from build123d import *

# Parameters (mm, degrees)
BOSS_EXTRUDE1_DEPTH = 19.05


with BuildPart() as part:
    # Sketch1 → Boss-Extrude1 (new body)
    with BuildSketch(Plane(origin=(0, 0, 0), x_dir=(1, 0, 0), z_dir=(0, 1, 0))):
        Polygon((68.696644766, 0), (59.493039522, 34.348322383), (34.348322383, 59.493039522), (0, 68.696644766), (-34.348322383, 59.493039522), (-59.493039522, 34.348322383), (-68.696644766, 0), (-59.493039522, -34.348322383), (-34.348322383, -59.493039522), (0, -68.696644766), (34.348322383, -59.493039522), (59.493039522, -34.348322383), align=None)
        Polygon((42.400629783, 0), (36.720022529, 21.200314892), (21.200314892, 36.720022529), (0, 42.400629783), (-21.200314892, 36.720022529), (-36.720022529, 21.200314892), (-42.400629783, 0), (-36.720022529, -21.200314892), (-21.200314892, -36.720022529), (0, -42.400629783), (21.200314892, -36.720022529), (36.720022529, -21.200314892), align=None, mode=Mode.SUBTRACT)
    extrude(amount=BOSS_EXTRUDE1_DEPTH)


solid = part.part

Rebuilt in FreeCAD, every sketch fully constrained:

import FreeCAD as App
import Part
import Sketcher
from FreeCAD import Vector
Q = App.Units.Quantity


def add_polygon(sketch, points):
    """Adds a closed chain of lines whose ends are joined by coincident constraints."""
    first, n = sketch.GeometryCount, len(points)
    for a, b in zip(points, points[1:] + points[:1]):
        sketch.addGeometry(Part.LineSegment(App.Vector(*a, 0), App.Vector(*b, 0)), False)
    for i in range(n):
        sketch.addConstraint(Sketcher.Constraint("Coincident", first + i, 2, first + (i + 1) % n, 1))

doc = App.newDocument("Part")
body = doc.addObject("PartDesign::Body", "Body")

# Sketch on XZ plane
sketch1 = doc.addObject("Sketcher::SketchObject", "Sketch")
body.addObject(sketch1)
sketch1.AttachmentSupport = (doc.XZ_Plane, [""])
sketch1.MapMode = "FlatFace"
add_polygon(sketch1, [(69, 0), (59, -34), (34, -59), (0, -69), (-34, -59), (-59, -34), (-69, 0), (-59, 34), (-34, 59), (0, 69), (34, 59), (59, 34)])  # lines 0-11
add_polygon(sketch1, [(37, -21), (42, 0), (37, 21), (21, 37), (0, 42), (-21, 37), (-37, 21), (-42, 0), (-37, -21), (-21, -37), (0, -42), (21, -37)])  # lines 12-23
sketch1.addConstraint([
    Sketcher.Constraint("Symmetric", 0, 2, 6, 2, -1, 1),
    Sketcher.Constraint("Symmetric", 1, 2, 7, 2, -1, 1),
    Sketcher.Constraint("Symmetric", 2, 2, 8, 2, -1, 1),
    Sketcher.Constraint("Symmetric", 3, 2, 9, 2, -1, 1),
    Sketcher.Constraint("Symmetric", 4, 2, 10, 2, -1, 1),
    Sketcher.Constraint("Symmetric", 5, 2, 11, 2, -1, 1),
    Sketcher.Constraint("Symmetric", 12, 2, 18, 2, -1, 1),
    Sketcher.Constraint("Symmetric", 13, 2, 19, 2, -1, 1),
    Sketcher.Constraint("Symmetric", 14, 2, 20, 2, -1, 1),
    Sketcher.Constraint("Symmetric", 15, 2, 21, 2, -1, 1),
    Sketcher.Constraint("Symmetric", 16, 2, 22, 2, -1, 1),
    Sketcher.Constraint("Symmetric", 17, 2, 23, 2, -1, 1),
    Sketcher.Constraint("Symmetric", 1, 2, 3, 2, -2),
    Sketcher.Constraint("Symmetric", 0, 2, 4, 2, -2),
    Sketcher.Constraint("Symmetric", 14, 2, 16, 2, -2),
    Sketcher.Constraint("Symmetric", 13, 2, 17, 2, -2),
    Sketcher.Constraint("PointOnObject", 2, 2, -2),
    Sketcher.Constraint("PointOnObject", 5, 2, -1),
    Sketcher.Constraint("PointOnObject", 12, 2, -1),
    Sketcher.Constraint("PointOnObject", 15, 2, -2),
    Sketcher.Constraint("Perpendicular", 0, 3),
    Sketcher.Constraint("Perpendicular", 1, 4),
    Sketcher.Constraint("Perpendicular", 9, 12),
    Sketcher.Constraint("Parallel", 10, 14),
    Sketcher.Constraint("Perpendicular", 12, 15),
    Sketcher.Constraint("Equal", 0, 1),
    Sketcher.Constraint("Equal", 1, 2),
    Sketcher.Constraint("Equal", 13, 14),
    Sketcher.Constraint("Equal", 14, 15),
    Sketcher.Constraint("Angle", 0, Q("-105 deg")),
    Sketcher.Constraint("Distance", 0, Q("1.4 in")),
    Sketcher.Constraint("DistanceX", 9, 2, 13, 2, 2.3717),
])
pad1 = doc.addObject("PartDesign::Pad", "Pad")
body.addObject(pad1)
pad1.Profile = sketch1
pad1.Length = Q("0.75 in")
pad1.Reversed = True

doc.recompute()
